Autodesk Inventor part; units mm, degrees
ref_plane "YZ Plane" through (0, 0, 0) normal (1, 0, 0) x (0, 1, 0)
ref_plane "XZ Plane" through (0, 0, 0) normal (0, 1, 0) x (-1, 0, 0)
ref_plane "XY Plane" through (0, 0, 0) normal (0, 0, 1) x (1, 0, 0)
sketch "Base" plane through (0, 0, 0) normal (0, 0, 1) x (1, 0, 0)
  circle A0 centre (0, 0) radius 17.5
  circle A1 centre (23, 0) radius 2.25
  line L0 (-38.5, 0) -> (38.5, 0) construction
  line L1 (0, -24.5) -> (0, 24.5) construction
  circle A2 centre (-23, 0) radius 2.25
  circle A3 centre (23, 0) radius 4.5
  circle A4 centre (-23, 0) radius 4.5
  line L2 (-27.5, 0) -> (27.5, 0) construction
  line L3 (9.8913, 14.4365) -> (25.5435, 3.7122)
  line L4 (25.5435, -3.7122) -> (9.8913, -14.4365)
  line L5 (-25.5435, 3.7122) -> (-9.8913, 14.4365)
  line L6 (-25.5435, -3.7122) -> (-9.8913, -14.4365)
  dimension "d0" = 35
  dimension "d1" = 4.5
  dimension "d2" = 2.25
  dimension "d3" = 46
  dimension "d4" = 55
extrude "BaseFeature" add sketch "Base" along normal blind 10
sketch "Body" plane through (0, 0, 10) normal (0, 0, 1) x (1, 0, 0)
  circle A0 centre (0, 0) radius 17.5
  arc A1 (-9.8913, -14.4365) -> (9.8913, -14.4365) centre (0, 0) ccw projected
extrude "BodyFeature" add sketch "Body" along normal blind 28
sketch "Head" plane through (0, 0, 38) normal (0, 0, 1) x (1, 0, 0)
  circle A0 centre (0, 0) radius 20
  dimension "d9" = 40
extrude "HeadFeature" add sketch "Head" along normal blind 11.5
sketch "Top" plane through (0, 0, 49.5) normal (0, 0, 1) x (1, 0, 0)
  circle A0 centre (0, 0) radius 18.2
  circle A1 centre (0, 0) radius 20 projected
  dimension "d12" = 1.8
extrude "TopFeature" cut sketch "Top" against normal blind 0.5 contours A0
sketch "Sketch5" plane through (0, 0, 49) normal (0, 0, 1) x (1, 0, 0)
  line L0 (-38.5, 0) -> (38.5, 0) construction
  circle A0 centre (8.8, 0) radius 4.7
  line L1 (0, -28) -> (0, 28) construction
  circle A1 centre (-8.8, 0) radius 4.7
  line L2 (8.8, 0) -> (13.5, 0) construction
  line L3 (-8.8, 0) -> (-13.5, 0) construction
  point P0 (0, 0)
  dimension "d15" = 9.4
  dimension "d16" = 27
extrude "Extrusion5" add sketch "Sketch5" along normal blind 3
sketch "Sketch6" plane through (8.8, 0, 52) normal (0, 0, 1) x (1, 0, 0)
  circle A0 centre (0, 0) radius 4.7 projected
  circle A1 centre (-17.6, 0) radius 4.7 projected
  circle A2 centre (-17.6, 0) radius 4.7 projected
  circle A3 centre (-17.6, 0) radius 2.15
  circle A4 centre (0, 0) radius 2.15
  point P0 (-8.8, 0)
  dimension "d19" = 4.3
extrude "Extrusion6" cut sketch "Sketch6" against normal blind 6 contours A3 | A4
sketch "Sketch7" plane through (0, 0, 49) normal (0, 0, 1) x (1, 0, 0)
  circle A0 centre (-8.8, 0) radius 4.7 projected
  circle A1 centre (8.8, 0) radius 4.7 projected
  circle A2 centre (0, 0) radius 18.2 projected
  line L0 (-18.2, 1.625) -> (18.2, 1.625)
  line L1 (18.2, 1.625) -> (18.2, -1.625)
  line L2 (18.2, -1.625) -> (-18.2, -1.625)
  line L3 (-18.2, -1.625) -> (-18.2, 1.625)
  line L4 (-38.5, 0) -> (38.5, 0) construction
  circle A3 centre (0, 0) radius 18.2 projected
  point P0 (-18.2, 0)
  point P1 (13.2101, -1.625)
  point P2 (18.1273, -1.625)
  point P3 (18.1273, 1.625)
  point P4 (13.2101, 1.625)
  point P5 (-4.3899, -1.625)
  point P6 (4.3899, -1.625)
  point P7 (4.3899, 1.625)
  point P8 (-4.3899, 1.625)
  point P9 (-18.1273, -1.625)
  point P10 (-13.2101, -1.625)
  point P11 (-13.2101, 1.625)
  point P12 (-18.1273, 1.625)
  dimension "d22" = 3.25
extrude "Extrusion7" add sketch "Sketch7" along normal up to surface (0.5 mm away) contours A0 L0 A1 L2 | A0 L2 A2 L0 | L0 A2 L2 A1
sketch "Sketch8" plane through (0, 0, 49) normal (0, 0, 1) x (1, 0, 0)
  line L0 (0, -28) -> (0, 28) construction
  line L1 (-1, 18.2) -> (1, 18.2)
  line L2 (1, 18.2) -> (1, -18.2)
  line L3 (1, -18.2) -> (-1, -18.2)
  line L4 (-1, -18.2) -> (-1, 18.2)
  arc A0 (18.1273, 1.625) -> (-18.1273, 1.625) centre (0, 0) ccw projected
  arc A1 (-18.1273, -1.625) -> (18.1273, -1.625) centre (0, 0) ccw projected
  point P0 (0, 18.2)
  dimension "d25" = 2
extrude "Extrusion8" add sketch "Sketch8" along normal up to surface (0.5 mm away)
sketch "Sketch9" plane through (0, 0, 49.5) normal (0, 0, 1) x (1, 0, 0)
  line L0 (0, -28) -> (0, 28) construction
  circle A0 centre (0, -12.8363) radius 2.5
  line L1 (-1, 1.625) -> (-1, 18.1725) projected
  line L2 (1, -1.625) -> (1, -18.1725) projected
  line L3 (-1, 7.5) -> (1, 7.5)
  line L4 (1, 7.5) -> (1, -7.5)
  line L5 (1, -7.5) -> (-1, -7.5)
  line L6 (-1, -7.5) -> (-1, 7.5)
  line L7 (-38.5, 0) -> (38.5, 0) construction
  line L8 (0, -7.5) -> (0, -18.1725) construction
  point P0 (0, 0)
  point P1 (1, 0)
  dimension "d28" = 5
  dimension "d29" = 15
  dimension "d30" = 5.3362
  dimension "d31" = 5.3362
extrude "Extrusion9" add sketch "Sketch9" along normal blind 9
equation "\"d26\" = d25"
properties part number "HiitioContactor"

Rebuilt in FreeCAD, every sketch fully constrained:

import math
import FreeCAD as App
import Part
import Sketcher

V = App.Vector
Q = App.Units.Quantity


def add_polygon(sketch, points):
    """Adds a closed chain of lines whose ends are joined by coincident constraints."""
    first, n = sketch.GeometryCount, len(points)
    for a, b in zip(points, points[1:] + points[:1]):
        sketch.addGeometry(Part.LineSegment(App.Vector(*a, 0), App.Vector(*b, 0)), False)
    for i in range(n):
        sketch.addConstraint(Sketcher.Constraint("Coincident", first + i, 2, first + (i + 1) % n, 1))

doc = App.newDocument("Part")
body = doc.addObject("PartDesign::Body", "Body")

sketch1 = body.newObject("Sketcher::SketchObject", "Sketch")
sketch1.AttachmentSupport = (doc.getObject("XY_Plane"), [""])
sketch1.MapMode = "FlatFace"
sketch1.addGeometry(Part.ArcOfCircle(Part.Circle(V(0, 0, 0), V(0, 0, 1), 17.5), math.radians(-124), math.radians(-56)), False)
sketch1.addGeometry(Part.LineSegment(V(9.9, -14.4, 0), V(25.5, -3.7, 0)), False)
sketch1.addGeometry(Part.ArcOfCircle(Part.Circle(V(23, 0, 0), V(0, 0, 1), 4.5), math.radians(-56), math.radians(56)), False)
sketch1.addGeometry(Part.LineSegment(V(25.5, 3.7, 0), V(9.9, 14.4, 0)), False)
sketch1.addGeometry(Part.ArcOfCircle(Part.Circle(V(0, 0, 0), V(0, 0, 1), 17.5), math.radians(56), math.radians(124)), False)
sketch1.addGeometry(Part.LineSegment(V(-9.9, 14.4, 0), V(-25.5, 3.7, 0)), False)
sketch1.addGeometry(Part.ArcOfCircle(Part.Circle(V(-23, 0, 0), V(0, 0, 1), 4.5), math.radians(124), math.radians(236)), False)
sketch1.addGeometry(Part.LineSegment(V(-25.5, -3.7, 0), V(-9.9, -14.4, 0)), False)
sketch1.addGeometry(Part.Circle(V(23, 0, 0), V(0, 0, 1), 2.2), False)
sketch1.addGeometry(Part.Circle(V(-23, 0, 0), V(0, 0, 1), 2.2), False)
sketch1.addConstraint(Sketcher.Constraint("Tangent", 0, 2, 1, 1))
sketch1.addConstraint(Sketcher.Constraint("Tangent", 1, 2, 2, 1))
sketch1.addConstraint(Sketcher.Constraint("Tangent", 2, 2, 3, 1))
sketch1.addConstraint(Sketcher.Constraint("Tangent", 3, 2, 4, 1))
sketch1.addConstraint(Sketcher.Constraint("Tangent", 4, 2, 5, 1))
sketch1.addConstraint(Sketcher.Constraint("Tangent", 5, 2, 6, 1))
sketch1.addConstraint(Sketcher.Constraint("Tangent", 6, 2, 7, 1))
sketch1.addConstraint(Sketcher.Constraint("Tangent", 7, 2, 0, 1))
sketch1.addConstraint(Sketcher.Constraint("Coincident", 0, 3, -1, 1))
sketch1.addConstraint(Sketcher.Constraint("Coincident", 4, 3, -1, 1))
sketch1.addConstraint(Sketcher.Constraint("Coincident", 8, 3, 2, 3))
sketch1.addConstraint(Sketcher.Constraint("Coincident", 9, 3, 6, 3))
sketch1.addConstraint(Sketcher.Constraint("Equal", 0, 4))
sketch1.addConstraint(Sketcher.Constraint("Equal", 2, 6))
sketch1.addConstraint(Sketcher.Constraint("Equal", 8, 9))
sketch1.addConstraint(Sketcher.Constraint("Symmetric", 2, 3, 6, 3, -1, 1))
sketch1.addConstraint(Sketcher.Constraint("PointOnObject", 2, 3, -1))
sketch1.addConstraint(Sketcher.Constraint("Diameter", 8, Q("4.5 mm")))
sketch1.addConstraint(Sketcher.Constraint("Radius", 0, Q("17.5 mm")))
sketch1.addConstraint(Sketcher.Constraint("Radius", 2, Q("4.5 mm")))
sketch1.addConstraint(Sketcher.Constraint("DistanceX", 6, 3, 2, 3, Q("46 mm")))
pad1 = body.newObject("PartDesign::Pad", "Pad")
pad1.Profile = sketch1
pad1.Length = 10

sketch2 = body.newObject("Sketcher::SketchObject", "Sketch001")
sketch2.AttachmentSupport = (doc.getObject("XY_Plane"), [""])
sketch2.MapMode = "FlatFace"
sketch2.AttachmentOffset = App.Placement(V(0, 0, 10), App.Rotation())
sketch2.addGeometry(Part.Circle(V(0, 0, 0), V(0, 0, 1), 18), False)
sketch2.addConstraint(Sketcher.Constraint("Coincident", 0, 3, -1, 1))
sketch2.addConstraint(Sketcher.Constraint("Diameter", 0, Q("35 mm")))
pad2 = body.newObject("PartDesign::Pad", "Pad001")
pad2.Profile = sketch2
pad2.Length = 28

sketch3 = body.newObject("Sketcher::SketchObject", "Sketch002")
sketch3.AttachmentSupport = (doc.getObject("XY_Plane"), [""])
sketch3.MapMode = "FlatFace"
sketch3.AttachmentOffset = App.Placement(V(0, 0, 38), App.Rotation())
sketch3.addGeometry(Part.Circle(V(0, 0, 0), V(0, 0, 1), 20), False)
sketch3.addConstraint(Sketcher.Constraint("Coincident", 0, 3, -1, 1))
sketch3.addConstraint(Sketcher.Constraint("Diameter", 0, Q("40 mm")))
pad3 = body.newObject("PartDesign::Pad", "Pad002")
pad3.Profile = sketch3
pad3.Length = 11.5

sketch4 = body.newObject("Sketcher::SketchObject", "Sketch003")
sketch4.AttachmentSupport = (doc.getObject("XY_Plane"), [""])
sketch4.MapMode = "FlatFace"
sketch4.AttachmentOffset = App.Placement(V(0, 0, 49.5), App.Rotation())
sketch4.addGeometry(Part.Circle(V(0, 0, 0), V(0, 0, 1), 18), False)
sketch4.addConstraint(Sketcher.Constraint("Coincident", 0, 3, -1, 1))
sketch4.addConstraint(Sketcher.Constraint("Diameter", 0, Q("36.4 mm")))
pocket1 = body.newObject("PartDesign::Pocket", "Pocket")
pocket1.Profile = sketch4
pocket1.Length = 0.5

sketch5 = body.newObject("Sketcher::SketchObject", "Sketch004")
sketch5.AttachmentSupport = (doc.getObject("XY_Plane"), [""])
sketch5.MapMode = "FlatFace"
sketch5.AttachmentOffset = App.Placement(V(0, 0, 49), App.Rotation())
sketch5.addGeometry(Part.Circle(V(8.8, 0, 0), V(0, 0, 1), 4.7), False)
sketch5.addGeometry(Part.Circle(V(-8.8, 0, 0), V(0, 0, 1), 4.7), False)
sketch5.addConstraint(Sketcher.Constraint("Equal", 0, 1))
sketch5.addConstraint(Sketcher.Constraint("Symmetric", 0, 3, 1, 3, -1, 1))
sketch5.addConstraint(Sketcher.Constraint("PointOnObject", 0, 3, -1))
sketch5.addConstraint(Sketcher.Constraint("Diameter", 0, Q("9.4 mm")))
sketch5.addConstraint(Sketcher.Constraint("DistanceX", -1, 1, 0, 3, Q("8.8 mm")))
pad4 = body.newObject("PartDesign::Pad", "Pad003")
pad4.Profile = sketch5
pad4.Length = 3

sketch6 = body.newObject("Sketcher::SketchObject", "Sketch005")
sketch6.AttachmentSupport = (doc.getObject("XY_Plane"), [""])
sketch6.MapMode = "FlatFace"
sketch6.AttachmentOffset = App.Placement(V(0, 0, 52), App.Rotation())
sketch6.addGeometry(Part.Circle(V(-8.8, 0, 0), V(0, 0, 1), 2.1), False)
sketch6.addGeometry(Part.Circle(V(8.8, 0, 0), V(0, 0, 1), 2.1), False)
sketch6.addConstraint(Sketcher.Constraint("Equal", 0, 1))
sketch6.addConstraint(Sketcher.Constraint("Symmetric", 0, 3, 1, 3, -1, 1))
sketch6.addConstraint(Sketcher.Constraint("PointOnObject", 0, 3, -1))
sketch6.addConstraint(Sketcher.Constraint("Diameter", 0, Q("4.3 mm")))
sketch6.addConstraint(Sketcher.Constraint("DistanceX", 0, 3, -1, 1, Q("8.8 mm")))
pocket2 = body.newObject("PartDesign::Pocket", "Pocket001")
pocket2.Profile = sketch6
pocket2.Length = 6

sketch7 = body.newObject("Sketcher::SketchObject", "Sketch006")
sketch7.AttachmentSupport = (doc.getObject("XY_Plane"), [""])
sketch7.MapMode = "FlatFace"
sketch7.AttachmentOffset = App.Placement(V(0, 0, 49), App.Rotation())
sketch7.addGeometry(Part.ArcOfCircle(Part.Circle(V(-8.8, 0, 0), V(0, 0, 1), 4.7), math.radians(-20), math.radians(20)), False)
sketch7.addGeometry(Part.LineSegment(V(-4.4, -1.6, 0), V(4.4, -1.6, 0)), False)
sketch7.addGeometry(Part.ArcOfCircle(Part.Circle(V(8.8, 0, 0), V(0, 0, 1), 4.7), math.radians(160), math.radians(200)), False)
sketch7.addGeometry(Part.LineSegment(V(4.4, 1.6, 0), V(-4.4, 1.6, 0)), False)
sketch7.addGeometry(Part.ArcOfCircle(Part.Circle(V(-8.8, 0, 0), V(0, 0, 1), 4.7), math.radians(160), math.radians(200)), False)
sketch7.addGeometry(Part.LineSegment(V(-13.2, 1.6, 0), V(-18.1, 1.6, 0)), False)
sketch7.addGeometry(Part.ArcOfCircle(Part.Circle(V(0, 0, 0), V(0, 0, 1), 18.2), math.radians(174.88), math.radians(185.12)), False)
sketch7.addGeometry(Part.LineSegment(V(-18.1, -1.6, 0), V(-13.2, -1.6, 0)), False)
sketch7.addGeometry(Part.LineSegment(V(18.1, 1.6, 0), V(13.2, 1.6, 0)), False)
sketch7.addGeometry(Part.ArcOfCircle(Part.Circle(V(8.8, 0, 0), V(0, 0, 1), 4.7), math.radians(-20), math.radians(20)), False)
sketch7.addGeometry(Part.LineSegment(V(13.2, -1.6, 0), V(18.1, -1.6, 0)), False)
sketch7.addGeometry(Part.ArcOfCircle(Part.Circle(V(0, 0, 0), V(0, 0, 1), 18.2), math.radians(-5.12), math.radians(5.12)), False)
sketch7.addConstraint(Sketcher.Constraint("Coincident", 0, 1, 1, 1))
sketch7.addConstraint(Sketcher.Constraint("Coincident", 1, 2, 2, 2))
sketch7.addConstraint(Sketcher.Constraint("Coincident", 2, 1, 3, 1))
sketch7.addConstraint(Sketcher.Constraint("Coincident", 3, 2, 0, 2))
sketch7.addConstraint(Sketcher.Constraint("Coincident", 4, 1, 5, 1))
sketch7.addConstraint(Sketcher.Constraint("Coincident", 5, 2, 6, 1))
sketch7.addConstraint(Sketcher.Constraint("Coincident", 6, 2, 7, 1))
sketch7.addConstraint(Sketcher.Constraint("Coincident", 7, 2, 4, 2))
sketch7.addConstraint(Sketcher.Constraint("Coincident", 8, 2, 9, 2))
sketch7.addConstraint(Sketcher.Constraint("Coincident", 9, 1, 10, 1))
sketch7.addConstraint(Sketcher.Constraint("Coincident", 10, 2, 11, 1))
sketch7.addConstraint(Sketcher.Constraint("Coincident", 11, 2, 8, 1))
sketch7.addConstraint(Sketcher.Constraint("Horizontal", 1))
sketch7.addConstraint(Sketcher.Constraint("Horizontal", 3))
sketch7.addConstraint(Sketcher.Constraint("Horizontal", 5))
sketch7.addConstraint(Sketcher.Constraint("Horizontal", 7))
sketch7.addConstraint(Sketcher.Constraint("Horizontal", 8))
sketch7.addConstraint(Sketcher.Constraint("Horizontal", 10))
sketch7.addConstraint(Sketcher.Constraint("Coincident", 6, 3, -1, 1))
sketch7.addConstraint(Sketcher.Constraint("Coincident", 11, 3, -1, 1))
sketch7.addConstraint(Sketcher.Constraint("Coincident", 4, 3, 0, 3))
sketch7.addConstraint(Sketcher.Constraint("Coincident", 9, 3, 2, 3))
sketch7.addConstraint(Sketcher.Constraint("Equal", 0, 2))
sketch7.addConstraint(Sketcher.Constraint("Equal", 2, 4))
sketch7.addConstraint(Sketcher.Constraint("Equal", 4, 9))
sketch7.addConstraint(Sketcher.Constraint("Equal", 6, 11))
sketch7.addConstraint(Sketcher.Constraint("Symmetric", 0, 3, 2, 3, -1, 1))
sketch7.addConstraint(Sketcher.Constraint("Symmetric", 4, 1, 8, 2, -2))
sketch7.addConstraint(Sketcher.Constraint("Horizontal", 3, 2, 4, 1))
sketch7.addConstraint(Sketcher.Constraint("Horizontal", 1, 2, 6, 2))
sketch7.addConstraint(Sketcher.Constraint("Horizontal", 7, 2, 9, 1))
sketch7.addConstraint(Sketcher.Constraint("Vertical", 1, 2, 2, 1))
sketch7.addConstraint(Sketcher.Constraint("Radius", 0, Q("4.7 mm")))
sketch7.addConstraint(Sketcher.Constraint("Radius", 6, Q("18.2 mm")))
sketch7.addConstraint(Sketcher.Constraint("DistanceY", 1, 2, 2, 1, Q("3.25 mm")))
sketch7.addConstraint(Sketcher.Constraint("DistanceX", 0, 3, -1, 1, Q("8.8 mm")))
pad5 = body.newObject("PartDesign::Pad", "Pad004")
pad5.Profile = sketch7
pad5.Length = 0.5

sketch8 = body.newObject("Sketcher::SketchObject", "Sketch007")
sketch8.AttachmentSupport = (doc.getObject("XY_Plane"), [""])
sketch8.MapMode = "FlatFace"
sketch8.AttachmentOffset = App.Placement(V(0, 0, 49), App.Rotation())
add_polygon(sketch8, [(-1, 18.2), (-1, -18.2), (1, -18.2), (1, 18.2)])
sketch8.addConstraint(Sketcher.Constraint("Vertical", 0))
sketch8.addConstraint(Sketcher.Constraint("Horizontal", 1))
sketch8.addConstraint(Sketcher.Constraint("Vertical", 2))
sketch8.addConstraint(Sketcher.Constraint("Horizontal", 3))
sketch8.addConstraint(Sketcher.Constraint("Symmetric", 0, 2, 2, 2, -1, 1))
sketch8.addConstraint(Sketcher.Constraint("DistanceX", 1, 1, 1, 2, Q("2 mm")))
sketch8.addConstraint(Sketcher.Constraint("DistanceY", 0, 2, 0, 1, Q("36.4 mm")))
pad6 = body.newObject("PartDesign::Pad", "Pad005")
pad6.Profile = sketch8
pad6.Length = 0.5

sketch9 = body.newObject("Sketcher::SketchObject", "Sketch008")
sketch9.AttachmentSupport = (doc.getObject("XY_Plane"), [""])
sketch9.MapMode = "FlatFace"
sketch9.AttachmentOffset = App.Placement(V(0, 0, 49.5), App.Rotation())
sketch9.addGeometry(Part.Circle(V(0, -12.8, 0), V(0, 0, 1), 2.5), False)
add_polygon(sketch9, [(-1, -7.5), (1, -7.5), (1, 7.5), (-1, 7.5)])
sketch9.addConstraint(Sketcher.Constraint("Horizontal", 1))
sketch9.addConstraint(Sketcher.Constraint("Vertical", 2))
sketch9.addConstraint(Sketcher.Constraint("Horizontal", 3))
sketch9.addConstraint(Sketcher.Constraint("Vertical", 4))
sketch9.addConstraint(Sketcher.Constraint("Symmetric", 1, 2, 3, 2, -1, 1))
sketch9.addConstraint(Sketcher.Constraint("PointOnObject", 0, 3, -2))
sketch9.addConstraint(Sketcher.Constraint("Diameter", 0, Q("5 mm")))
sketch9.addConstraint(Sketcher.Constraint("DistanceY", 2, 1, 2, 2, Q("15 mm")))
sketch9.addConstraint(Sketcher.Constraint("DistanceX", 1, 1, 1, 2, Q("2 mm")))
sketch9.addConstraint(Sketcher.Constraint("DistanceY", 0, 3, 1, 2, Q("5.3363 mm")))
pad7 = body.newObject("PartDesign::Pad", "Pad006")
pad7.Profile = sketch9
pad7.Length = 9

doc.recompute()
